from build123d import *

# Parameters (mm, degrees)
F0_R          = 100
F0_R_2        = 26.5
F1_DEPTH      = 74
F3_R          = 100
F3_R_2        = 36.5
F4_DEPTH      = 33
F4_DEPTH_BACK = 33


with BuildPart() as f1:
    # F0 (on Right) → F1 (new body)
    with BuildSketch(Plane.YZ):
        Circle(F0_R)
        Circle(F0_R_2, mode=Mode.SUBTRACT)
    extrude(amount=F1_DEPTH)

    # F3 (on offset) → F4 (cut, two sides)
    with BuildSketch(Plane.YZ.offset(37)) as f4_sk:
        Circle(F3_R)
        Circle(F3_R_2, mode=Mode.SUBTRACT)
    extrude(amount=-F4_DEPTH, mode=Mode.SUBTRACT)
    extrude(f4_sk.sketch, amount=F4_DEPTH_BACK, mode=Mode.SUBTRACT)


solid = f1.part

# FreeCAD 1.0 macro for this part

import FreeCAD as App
import Part
import Sketcher

V = App.Vector

doc = App.newDocument("Part")
body = doc.addObject("PartDesign::Body", "Body")

sketch1 = body.newObject("Sketcher::SketchObject", "Sketch")
sketch1.AttachmentSupport = (doc.getObject("YZ_Plane"), [""])
sketch1.MapMode = "FlatFace"
sketch1.addGeometry([
    Part.Circle(V(0, 0, 0), V(0, 0, 1), 100),
    Part.Circle(V(0, 0, 0), V(0, 0, 1), 26),
], False)
sketch1.addConstraint([
    Sketcher.Constraint("Coincident", 0, 3, -1, 1),
    Sketcher.Constraint("Coincident", 1, 3, -1, 1),
    Sketcher.Constraint("Diameter", 0, 200.0),
    Sketcher.Constraint("Diameter", 1, 53.0),
])
pad1 = body.newObject("PartDesign::Pad", "Pad")
pad1.Profile = sketch1
pad1.Length = 74

sketch2 = body.newObject("Sketcher::SketchObject", "Sketch001")
sketch2.AttachmentSupport = (doc.getObject("YZ_Plane"), [""])
sketch2.MapMode = "FlatFace"
sketch2.AttachmentOffset = App.Placement(V(0, 0, 37), App.Rotation())
sketch2.addGeometry([
    Part.Circle(V(0, 0, 0), V(0, 0, 1), 100),
    Part.Circle(V(0, 0, 0), V(0, 0, 1), 36),
], False)
sketch2.addConstraint([
    Sketcher.Constraint("Coincident", 0, 3, -1, 1),
    Sketcher.Constraint("Coincident", 1, 3, -1, 1),
    Sketcher.Constraint("Diameter", 0, 200.0),
    Sketcher.Constraint("Diameter", 1, 73.0),
])
pocket1 = body.newObject("PartDesign::Pocket", "Pocket")
pocket1.Profile = sketch2
pocket1.Type = "TwoLengths"
pocket1.Length = 33
pocket1.Length2 = 33

doc.recompute()
